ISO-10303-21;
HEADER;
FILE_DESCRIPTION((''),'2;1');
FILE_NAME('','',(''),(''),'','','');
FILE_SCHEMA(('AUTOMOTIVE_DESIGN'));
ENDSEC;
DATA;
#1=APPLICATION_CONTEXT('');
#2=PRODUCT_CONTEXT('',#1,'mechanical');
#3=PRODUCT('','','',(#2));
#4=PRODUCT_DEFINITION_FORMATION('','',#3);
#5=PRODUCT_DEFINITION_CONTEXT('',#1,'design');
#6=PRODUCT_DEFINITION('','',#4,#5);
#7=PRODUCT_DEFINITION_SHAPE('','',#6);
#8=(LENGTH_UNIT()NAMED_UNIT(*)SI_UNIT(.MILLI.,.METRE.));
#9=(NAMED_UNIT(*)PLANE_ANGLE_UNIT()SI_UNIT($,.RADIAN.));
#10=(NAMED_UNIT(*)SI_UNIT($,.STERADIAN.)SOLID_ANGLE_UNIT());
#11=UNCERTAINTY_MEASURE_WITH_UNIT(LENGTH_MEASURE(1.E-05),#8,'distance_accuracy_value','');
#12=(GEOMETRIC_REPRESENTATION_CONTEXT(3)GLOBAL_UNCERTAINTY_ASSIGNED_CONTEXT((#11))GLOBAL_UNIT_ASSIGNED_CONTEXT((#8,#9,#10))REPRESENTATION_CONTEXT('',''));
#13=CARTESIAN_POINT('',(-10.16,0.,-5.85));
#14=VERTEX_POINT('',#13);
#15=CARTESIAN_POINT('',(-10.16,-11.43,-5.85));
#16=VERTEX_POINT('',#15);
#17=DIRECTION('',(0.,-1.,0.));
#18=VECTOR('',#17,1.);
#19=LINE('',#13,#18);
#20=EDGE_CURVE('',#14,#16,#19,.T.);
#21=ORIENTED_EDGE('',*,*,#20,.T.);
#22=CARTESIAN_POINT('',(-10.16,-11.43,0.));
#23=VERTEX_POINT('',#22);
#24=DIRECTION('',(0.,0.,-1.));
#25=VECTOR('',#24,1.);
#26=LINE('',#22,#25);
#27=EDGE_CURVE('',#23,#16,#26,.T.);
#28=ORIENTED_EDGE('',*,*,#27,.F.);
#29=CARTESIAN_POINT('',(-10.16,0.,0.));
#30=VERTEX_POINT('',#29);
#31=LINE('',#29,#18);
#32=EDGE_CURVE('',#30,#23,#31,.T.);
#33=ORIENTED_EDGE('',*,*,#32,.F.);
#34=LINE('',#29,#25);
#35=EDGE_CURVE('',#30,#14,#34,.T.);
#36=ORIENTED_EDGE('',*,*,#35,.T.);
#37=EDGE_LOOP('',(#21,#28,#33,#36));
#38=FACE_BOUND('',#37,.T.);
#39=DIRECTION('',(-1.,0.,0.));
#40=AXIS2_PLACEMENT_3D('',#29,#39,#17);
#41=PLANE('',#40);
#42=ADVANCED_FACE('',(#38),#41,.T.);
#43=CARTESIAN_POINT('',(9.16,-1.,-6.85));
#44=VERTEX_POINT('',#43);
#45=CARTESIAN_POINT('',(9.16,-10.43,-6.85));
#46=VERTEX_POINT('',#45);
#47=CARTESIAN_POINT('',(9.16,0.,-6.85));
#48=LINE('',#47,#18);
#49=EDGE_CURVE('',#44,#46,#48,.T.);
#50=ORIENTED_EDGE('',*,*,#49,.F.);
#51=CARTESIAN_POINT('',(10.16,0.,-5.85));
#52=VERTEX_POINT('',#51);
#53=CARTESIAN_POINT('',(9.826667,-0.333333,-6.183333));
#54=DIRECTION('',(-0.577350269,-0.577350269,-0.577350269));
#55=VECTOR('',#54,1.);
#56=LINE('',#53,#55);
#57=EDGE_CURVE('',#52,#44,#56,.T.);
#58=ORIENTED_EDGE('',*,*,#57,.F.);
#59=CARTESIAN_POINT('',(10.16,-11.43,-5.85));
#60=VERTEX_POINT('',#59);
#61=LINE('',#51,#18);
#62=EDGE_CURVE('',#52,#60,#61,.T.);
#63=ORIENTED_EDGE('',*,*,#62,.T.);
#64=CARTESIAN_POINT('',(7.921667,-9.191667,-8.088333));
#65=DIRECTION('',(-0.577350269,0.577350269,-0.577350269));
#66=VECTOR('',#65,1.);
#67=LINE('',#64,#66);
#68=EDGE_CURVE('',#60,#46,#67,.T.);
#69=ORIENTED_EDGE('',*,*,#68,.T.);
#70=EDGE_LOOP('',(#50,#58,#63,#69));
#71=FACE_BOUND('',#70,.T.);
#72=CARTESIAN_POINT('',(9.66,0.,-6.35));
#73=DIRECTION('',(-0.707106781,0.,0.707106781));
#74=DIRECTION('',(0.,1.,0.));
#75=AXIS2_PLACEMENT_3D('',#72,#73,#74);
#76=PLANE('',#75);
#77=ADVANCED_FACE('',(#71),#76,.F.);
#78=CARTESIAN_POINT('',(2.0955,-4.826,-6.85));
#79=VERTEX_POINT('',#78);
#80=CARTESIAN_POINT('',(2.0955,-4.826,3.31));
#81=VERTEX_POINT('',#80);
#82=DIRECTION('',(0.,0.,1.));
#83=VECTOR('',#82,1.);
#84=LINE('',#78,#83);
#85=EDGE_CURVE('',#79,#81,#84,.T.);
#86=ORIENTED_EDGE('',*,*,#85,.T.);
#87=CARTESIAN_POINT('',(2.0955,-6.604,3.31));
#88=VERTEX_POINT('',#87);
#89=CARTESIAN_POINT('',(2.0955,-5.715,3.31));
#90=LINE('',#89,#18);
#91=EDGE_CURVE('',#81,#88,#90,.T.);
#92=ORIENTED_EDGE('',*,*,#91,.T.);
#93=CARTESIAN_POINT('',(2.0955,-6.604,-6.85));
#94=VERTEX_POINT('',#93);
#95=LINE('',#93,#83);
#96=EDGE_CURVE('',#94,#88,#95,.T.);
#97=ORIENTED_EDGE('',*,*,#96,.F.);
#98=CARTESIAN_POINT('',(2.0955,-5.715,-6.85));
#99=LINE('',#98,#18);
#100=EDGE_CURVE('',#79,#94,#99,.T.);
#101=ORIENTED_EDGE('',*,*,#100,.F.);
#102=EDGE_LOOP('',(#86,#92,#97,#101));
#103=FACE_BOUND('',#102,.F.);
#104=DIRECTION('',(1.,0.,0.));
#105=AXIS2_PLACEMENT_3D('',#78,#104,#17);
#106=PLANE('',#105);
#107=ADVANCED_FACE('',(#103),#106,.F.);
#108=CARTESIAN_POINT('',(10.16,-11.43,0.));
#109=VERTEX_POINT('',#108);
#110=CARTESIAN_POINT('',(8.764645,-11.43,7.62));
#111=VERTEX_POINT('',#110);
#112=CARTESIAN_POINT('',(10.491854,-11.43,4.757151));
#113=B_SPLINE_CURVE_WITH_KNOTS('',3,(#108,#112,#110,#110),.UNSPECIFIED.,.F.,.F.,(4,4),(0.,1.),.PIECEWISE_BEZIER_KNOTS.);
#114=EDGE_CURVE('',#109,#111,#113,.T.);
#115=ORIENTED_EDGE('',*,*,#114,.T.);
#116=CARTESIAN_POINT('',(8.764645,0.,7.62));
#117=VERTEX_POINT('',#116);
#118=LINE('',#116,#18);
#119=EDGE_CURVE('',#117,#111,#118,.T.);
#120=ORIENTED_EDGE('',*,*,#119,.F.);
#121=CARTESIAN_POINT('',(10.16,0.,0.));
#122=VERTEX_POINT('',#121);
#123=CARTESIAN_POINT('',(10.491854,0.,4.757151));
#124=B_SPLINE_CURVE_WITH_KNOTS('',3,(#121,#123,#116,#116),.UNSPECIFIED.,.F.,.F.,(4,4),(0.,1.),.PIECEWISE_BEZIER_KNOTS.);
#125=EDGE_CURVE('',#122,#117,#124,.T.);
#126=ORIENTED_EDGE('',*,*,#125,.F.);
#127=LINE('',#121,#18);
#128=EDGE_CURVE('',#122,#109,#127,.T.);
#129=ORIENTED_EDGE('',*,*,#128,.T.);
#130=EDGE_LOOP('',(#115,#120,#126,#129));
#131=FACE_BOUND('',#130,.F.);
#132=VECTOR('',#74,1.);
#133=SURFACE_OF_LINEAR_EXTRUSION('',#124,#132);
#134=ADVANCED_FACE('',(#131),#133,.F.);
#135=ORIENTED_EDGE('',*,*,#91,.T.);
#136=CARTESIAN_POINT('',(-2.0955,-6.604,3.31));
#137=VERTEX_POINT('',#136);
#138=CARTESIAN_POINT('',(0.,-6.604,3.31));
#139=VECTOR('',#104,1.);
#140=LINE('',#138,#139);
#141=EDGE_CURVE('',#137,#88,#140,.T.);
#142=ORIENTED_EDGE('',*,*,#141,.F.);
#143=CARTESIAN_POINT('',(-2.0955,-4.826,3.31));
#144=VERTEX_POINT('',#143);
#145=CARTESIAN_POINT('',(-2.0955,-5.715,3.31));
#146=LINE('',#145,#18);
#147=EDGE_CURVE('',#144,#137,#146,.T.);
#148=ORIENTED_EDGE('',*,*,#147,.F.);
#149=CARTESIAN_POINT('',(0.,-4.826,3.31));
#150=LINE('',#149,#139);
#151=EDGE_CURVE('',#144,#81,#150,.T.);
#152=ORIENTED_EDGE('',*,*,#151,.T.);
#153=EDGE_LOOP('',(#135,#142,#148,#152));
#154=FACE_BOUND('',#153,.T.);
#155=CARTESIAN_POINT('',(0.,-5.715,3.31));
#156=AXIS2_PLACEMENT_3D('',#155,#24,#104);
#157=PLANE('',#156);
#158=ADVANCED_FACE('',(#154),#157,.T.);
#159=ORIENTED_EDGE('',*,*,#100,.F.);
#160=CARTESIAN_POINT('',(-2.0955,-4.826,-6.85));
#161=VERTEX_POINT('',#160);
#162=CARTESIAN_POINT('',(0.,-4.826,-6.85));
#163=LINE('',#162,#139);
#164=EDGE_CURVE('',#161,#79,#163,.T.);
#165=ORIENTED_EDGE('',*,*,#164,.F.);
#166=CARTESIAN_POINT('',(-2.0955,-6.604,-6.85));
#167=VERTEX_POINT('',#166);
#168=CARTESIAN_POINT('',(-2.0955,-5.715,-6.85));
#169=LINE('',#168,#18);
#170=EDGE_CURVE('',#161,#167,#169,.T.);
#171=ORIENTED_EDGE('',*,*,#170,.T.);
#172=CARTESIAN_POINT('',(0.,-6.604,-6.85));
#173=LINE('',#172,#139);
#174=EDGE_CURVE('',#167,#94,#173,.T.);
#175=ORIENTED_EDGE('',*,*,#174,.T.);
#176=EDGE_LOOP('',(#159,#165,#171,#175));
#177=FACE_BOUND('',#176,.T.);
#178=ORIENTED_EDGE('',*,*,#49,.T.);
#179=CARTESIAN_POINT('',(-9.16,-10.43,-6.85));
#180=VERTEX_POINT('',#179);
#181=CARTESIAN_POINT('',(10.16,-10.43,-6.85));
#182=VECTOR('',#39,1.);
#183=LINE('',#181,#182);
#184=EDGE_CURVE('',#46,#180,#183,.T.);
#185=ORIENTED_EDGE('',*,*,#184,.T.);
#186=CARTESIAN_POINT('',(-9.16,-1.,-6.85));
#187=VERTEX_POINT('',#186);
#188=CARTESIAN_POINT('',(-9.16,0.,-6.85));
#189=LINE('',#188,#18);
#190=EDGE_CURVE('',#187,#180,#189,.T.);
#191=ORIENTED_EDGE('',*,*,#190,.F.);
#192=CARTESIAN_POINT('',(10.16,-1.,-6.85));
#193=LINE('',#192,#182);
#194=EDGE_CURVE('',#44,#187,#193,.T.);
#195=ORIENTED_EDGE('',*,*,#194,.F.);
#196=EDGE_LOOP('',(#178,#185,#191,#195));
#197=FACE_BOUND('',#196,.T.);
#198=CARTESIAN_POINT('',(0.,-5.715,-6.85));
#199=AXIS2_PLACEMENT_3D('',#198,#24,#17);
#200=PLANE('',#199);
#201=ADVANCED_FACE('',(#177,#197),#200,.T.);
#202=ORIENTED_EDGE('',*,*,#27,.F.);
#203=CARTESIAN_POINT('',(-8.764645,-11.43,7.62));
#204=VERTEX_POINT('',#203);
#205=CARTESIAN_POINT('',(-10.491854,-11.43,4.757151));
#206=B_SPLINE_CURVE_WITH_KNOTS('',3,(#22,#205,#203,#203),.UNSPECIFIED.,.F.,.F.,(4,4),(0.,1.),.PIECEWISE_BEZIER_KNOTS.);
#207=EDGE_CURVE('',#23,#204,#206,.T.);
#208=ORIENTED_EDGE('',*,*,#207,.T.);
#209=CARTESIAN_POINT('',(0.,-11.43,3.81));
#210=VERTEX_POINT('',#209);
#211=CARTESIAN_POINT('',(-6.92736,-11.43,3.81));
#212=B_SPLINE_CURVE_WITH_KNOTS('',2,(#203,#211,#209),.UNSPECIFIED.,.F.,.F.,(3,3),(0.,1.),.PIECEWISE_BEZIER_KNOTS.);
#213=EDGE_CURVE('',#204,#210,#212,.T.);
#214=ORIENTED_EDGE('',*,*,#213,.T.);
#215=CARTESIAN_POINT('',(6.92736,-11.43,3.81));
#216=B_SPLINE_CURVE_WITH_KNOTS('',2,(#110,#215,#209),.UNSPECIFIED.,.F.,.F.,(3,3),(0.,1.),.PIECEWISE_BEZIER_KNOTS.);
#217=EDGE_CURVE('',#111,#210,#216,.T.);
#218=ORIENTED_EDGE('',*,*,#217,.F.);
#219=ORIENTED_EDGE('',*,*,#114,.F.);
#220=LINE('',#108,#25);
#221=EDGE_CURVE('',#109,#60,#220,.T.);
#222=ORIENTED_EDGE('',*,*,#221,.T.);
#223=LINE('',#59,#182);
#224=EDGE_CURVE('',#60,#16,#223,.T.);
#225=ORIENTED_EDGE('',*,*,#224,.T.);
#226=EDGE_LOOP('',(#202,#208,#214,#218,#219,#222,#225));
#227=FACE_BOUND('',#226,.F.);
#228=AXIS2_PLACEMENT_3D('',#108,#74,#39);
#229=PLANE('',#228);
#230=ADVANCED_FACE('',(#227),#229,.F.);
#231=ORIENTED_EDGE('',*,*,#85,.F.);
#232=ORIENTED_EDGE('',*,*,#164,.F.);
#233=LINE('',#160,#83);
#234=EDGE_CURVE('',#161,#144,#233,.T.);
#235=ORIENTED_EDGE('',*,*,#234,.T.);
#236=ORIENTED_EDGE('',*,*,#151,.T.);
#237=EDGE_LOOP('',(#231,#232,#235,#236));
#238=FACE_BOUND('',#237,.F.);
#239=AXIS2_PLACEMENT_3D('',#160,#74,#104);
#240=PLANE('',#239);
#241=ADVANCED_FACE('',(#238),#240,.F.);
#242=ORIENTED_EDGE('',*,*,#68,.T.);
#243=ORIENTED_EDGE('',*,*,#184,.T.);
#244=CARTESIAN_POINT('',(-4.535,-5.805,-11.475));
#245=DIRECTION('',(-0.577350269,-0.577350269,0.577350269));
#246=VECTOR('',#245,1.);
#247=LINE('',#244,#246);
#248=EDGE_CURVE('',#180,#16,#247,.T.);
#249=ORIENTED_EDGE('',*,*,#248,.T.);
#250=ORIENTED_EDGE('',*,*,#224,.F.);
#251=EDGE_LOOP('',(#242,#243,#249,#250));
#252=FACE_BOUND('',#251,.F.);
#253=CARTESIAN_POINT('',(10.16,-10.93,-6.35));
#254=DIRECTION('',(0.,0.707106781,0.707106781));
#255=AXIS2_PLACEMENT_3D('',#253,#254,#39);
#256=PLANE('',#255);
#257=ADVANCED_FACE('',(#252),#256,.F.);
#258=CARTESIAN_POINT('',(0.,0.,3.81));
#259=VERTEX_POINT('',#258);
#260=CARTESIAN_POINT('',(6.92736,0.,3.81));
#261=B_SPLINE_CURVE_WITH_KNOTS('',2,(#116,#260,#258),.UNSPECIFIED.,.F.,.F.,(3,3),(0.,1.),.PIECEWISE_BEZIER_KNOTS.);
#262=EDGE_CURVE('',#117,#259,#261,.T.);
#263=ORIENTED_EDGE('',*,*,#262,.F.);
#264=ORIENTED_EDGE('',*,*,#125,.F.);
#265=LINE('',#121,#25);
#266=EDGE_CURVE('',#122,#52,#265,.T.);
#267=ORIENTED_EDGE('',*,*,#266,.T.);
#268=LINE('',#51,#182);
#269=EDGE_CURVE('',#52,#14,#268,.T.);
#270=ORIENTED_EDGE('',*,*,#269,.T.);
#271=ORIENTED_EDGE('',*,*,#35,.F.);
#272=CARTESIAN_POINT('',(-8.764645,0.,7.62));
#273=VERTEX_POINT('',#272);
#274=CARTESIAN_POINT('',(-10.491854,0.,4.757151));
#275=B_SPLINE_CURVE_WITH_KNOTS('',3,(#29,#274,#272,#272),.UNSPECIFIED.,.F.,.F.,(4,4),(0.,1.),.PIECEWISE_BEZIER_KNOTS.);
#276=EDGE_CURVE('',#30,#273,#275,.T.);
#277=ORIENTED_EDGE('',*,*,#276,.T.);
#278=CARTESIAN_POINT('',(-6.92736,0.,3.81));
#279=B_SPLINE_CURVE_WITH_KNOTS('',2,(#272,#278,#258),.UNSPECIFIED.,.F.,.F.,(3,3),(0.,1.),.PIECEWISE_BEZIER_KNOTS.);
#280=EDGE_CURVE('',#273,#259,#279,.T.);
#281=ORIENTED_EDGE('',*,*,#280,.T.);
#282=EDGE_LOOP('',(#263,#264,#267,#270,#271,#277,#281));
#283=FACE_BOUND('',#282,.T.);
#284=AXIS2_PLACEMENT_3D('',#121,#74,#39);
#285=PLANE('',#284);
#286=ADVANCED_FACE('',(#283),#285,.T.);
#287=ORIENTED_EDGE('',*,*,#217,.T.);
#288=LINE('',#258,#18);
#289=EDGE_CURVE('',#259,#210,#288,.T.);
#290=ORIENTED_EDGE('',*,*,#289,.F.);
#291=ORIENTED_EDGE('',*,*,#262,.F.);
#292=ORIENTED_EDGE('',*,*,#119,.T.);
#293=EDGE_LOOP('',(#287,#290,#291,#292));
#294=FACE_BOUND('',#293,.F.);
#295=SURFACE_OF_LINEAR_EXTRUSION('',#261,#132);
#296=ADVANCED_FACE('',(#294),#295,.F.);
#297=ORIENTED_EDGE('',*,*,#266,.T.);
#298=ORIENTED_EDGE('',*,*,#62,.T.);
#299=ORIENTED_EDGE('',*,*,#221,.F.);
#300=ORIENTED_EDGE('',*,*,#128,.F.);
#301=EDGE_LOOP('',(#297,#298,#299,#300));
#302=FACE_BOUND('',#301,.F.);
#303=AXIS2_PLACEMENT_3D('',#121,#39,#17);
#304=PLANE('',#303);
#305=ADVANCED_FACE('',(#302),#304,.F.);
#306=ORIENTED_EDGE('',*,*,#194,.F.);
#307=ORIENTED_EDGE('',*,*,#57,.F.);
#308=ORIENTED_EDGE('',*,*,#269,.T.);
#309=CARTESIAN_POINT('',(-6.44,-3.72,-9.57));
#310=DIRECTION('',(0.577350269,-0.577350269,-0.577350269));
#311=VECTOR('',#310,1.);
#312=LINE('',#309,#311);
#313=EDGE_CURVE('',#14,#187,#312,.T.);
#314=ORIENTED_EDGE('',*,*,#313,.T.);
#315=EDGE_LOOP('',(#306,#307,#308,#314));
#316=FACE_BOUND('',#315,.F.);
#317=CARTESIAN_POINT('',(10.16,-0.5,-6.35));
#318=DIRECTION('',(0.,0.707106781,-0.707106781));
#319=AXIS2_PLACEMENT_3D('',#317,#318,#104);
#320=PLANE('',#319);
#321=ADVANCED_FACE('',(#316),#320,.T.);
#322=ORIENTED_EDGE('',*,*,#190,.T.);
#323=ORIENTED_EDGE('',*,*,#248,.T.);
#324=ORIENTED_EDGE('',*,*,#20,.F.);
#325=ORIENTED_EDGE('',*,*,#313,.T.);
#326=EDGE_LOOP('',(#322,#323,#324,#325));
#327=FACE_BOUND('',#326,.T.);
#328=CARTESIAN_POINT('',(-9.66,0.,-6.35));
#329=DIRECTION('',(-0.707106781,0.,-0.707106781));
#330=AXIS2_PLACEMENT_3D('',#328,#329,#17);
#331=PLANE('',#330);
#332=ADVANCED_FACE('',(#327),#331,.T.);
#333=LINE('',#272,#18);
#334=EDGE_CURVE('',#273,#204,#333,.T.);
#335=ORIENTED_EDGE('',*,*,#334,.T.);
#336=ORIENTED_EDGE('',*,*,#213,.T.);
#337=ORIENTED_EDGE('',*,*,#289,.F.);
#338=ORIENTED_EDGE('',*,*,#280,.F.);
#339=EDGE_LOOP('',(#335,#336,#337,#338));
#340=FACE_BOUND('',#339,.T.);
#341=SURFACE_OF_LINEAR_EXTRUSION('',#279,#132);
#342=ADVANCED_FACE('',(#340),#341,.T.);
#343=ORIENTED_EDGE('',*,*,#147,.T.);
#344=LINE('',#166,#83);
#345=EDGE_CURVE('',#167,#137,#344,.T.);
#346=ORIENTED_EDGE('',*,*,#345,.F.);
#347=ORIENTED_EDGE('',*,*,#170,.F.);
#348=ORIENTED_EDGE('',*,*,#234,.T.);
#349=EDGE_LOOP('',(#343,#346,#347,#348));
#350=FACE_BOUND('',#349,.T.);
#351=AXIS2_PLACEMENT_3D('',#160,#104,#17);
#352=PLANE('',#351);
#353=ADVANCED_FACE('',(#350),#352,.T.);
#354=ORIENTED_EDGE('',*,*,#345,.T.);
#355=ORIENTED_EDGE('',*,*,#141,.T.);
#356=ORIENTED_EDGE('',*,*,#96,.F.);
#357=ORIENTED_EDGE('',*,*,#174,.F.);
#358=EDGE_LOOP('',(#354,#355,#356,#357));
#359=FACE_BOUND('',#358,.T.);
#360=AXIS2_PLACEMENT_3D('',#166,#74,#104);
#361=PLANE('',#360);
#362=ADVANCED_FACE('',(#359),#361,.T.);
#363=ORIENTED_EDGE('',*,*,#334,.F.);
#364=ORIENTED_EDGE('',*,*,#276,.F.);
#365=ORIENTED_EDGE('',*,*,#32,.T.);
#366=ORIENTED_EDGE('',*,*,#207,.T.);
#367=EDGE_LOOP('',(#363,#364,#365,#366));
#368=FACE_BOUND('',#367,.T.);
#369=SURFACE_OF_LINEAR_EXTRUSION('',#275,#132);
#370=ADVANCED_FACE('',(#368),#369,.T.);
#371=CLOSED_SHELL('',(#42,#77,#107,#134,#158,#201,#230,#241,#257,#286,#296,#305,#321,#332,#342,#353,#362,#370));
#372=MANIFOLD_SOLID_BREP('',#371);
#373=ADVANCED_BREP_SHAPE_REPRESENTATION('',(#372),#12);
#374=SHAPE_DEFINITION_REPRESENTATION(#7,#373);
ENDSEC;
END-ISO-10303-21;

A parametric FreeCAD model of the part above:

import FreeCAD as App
import Part
import Sketcher
Q = App.Units.Quantity


def edges_at(feature, points):
    """Names of the edges that pass closest to the given points."""
    edges = feature.Shape.Edges
    near = lambda p: min(range(len(edges)), key=lambda i: edges[i].distToShape(Part.Vertex(*p))[0])
    return sorted({f"Edge{near(p) + 1}" for p in points})

doc = App.newDocument("Part")
params = doc.addObject("Spreadsheet::Sheet", "Params")
for row, (alias, value) in enumerate([
    ("pad1_length", "0.45 in"),
    ("sketch2_width", "0.8 in"),
    ("sketch2_height", "0.45 in"),
    ("pad2_length", "6.85 mm"),
    ("sketch3_height", "0.07 in"),
    ("sketch3_width", "0.165 in"),
    ("pocket1_length", "0.4 in"),
    ("chamfer_size", "1 mm"),
], start=1):
    params.set(f"A{row}", alias)
    params.set(f"B{row}", "=" + value)
    params.setAlias(f"B{row}", alias)

body = doc.addObject("PartDesign::Body", "Body")

# Sketch on XZ plane
sketch1 = body.newObject("Sketcher::SketchObject", "Sketch")
sketch1.AttachmentSupport = (doc.getObject("XZ_Plane"), [""])
sketch1.MapMode = "FlatFace"
sketch1.addGeometry([
    Part.LineSegment(App.Vector(-10.16, 0, 0), App.Vector(0, 0, 0)),
    Part.LineSegment(App.Vector(0, 0, 0), App.Vector(0, 3.81, 0)),
    Part.BSplineCurve([App.Vector(-8.764645, 7.62, 0), App.Vector(-6.92736, 3.81, 0), App.Vector(0, 3.81, 0)], [3, 3], [0, 1], False, 2, [1, 1, 1], False),
    Part.BSplineCurve([App.Vector(-10.16, 0, 0), App.Vector(-10.491854, 4.757151, 0), App.Vector(-8.764645, 7.62, 0), App.Vector(-8.764645, 7.62, 0)], [4, 4], [0, 1], False, 3, [1, 1, 1, 1], False),
], False)
sketch1.addConstraint([
    Sketcher.Constraint("Block", 2),
    Sketcher.Constraint("Block", 3),
    Sketcher.Constraint("Coincident", 0, 2, 1, 1),
    Sketcher.Constraint("Coincident", 1, 2, 2, 2),
    Sketcher.Constraint("Coincident", 3, 1, 0, 1),
    Sketcher.Constraint("Horizontal", 0),
    Sketcher.Constraint("Vertical", 1),
])
pad1 = body.newObject("PartDesign::Pad", "Pad")
pad1.Profile = sketch1
pad1.setExpression("Length", "Params.pad1_length")
body2 = doc.addObject("PartDesign::Body", "Body001")
doc.recompute()

body2.BaseFeature = body
doc.recompute()

mirroring = doc.addObject("Part::Mirroring", "Mirroring")
mirroring.Source = body
mirroring.Base = App.Vector(0, 0, 0)
mirroring.Normal = App.Vector(1, 0, 0)
body3 = doc.addObject("PartDesign::Body", "Body002")
body3.BaseFeature = mirroring
boolean = body2.newObject("PartDesign::Boolean", "Boolean")
boolean.Type = "Fuse"
boolean.addObjects([body3])
doc.recompute()

# Sketch on XY plane
sketch2 = body2.newObject("Sketcher::SketchObject", "Sketch001")
sketch2.AttachmentSupport = (doc.getObject("XY_Plane001"), [""])
sketch2.MapMode = "FlatFace"
sketch2.addGeometry([
    Part.LineSegment(App.Vector(-10.16, 0, 0), App.Vector(10.16, 0, 0)),
    Part.LineSegment(App.Vector(10.16, 0, 0), App.Vector(10.16, -11.43, 0)),
    Part.LineSegment(App.Vector(10.16, -11.43, 0), App.Vector(-10.16, -11.43, 0)),
    Part.LineSegment(App.Vector(-10.16, -11.43, 0), App.Vector(-10.16, 0, 0)),
], False)
sketch2.addConstraint([
    Sketcher.Constraint("Coincident", 0, 2, 1, 1),
    Sketcher.Constraint("Coincident", 1, 2, 2, 1),
    Sketcher.Constraint("Coincident", 2, 2, 3, 1),
    Sketcher.Constraint("Coincident", 3, 2, 0, 1),
    Sketcher.Constraint("Horizontal", 0),
    Sketcher.Constraint("Vertical", 1),
    Sketcher.Constraint("Horizontal", 2),
    Sketcher.Constraint("Vertical", 3),
    Sketcher.Constraint("Symmetric", 0, 2, 3, 2, -1, 1),
    Sketcher.Constraint("DistanceX", 0, 1, 0, 2, Q("0.8 in")),
    Sketcher.Constraint("DistanceY", 1, 2, 1, 1, Q("0.45 in")),
])
sketch2.setExpression("Constraints[9]", "Params.sketch2_width")
sketch2.setExpression("Constraints[10]", "Params.sketch2_height")
pad2 = body2.newObject("PartDesign::Pad", "Pad001")
pad2.Profile = sketch2
pad2.setExpression("Length", "Params.pad2_length")
pad2.Reversed = True

# Sketch on XY plane
sketch3 = body2.newObject("Sketcher::SketchObject", "Sketch002")
sketch3.AttachmentSupport = (doc.getObject("XY_Plane001"), [""])
sketch3.MapMode = "FlatFace"
sketch3.AttachmentOffset = App.Placement(App.Vector(0, 0, -6.85), App.Rotation())
sketch3.addGeometry([
    Part.LineSegment(App.Vector(-2.0955, -6.604, 0), App.Vector(-2.0955, -4.826, 0)),
    Part.LineSegment(App.Vector(-2.0955, -4.826, 0), App.Vector(2.0955, -4.826, 0)),
    Part.LineSegment(App.Vector(2.0955, -4.826, 0), App.Vector(2.0955, -6.604, 0)),
    Part.LineSegment(App.Vector(2.0955, -6.604, 0), App.Vector(-2.0955, -6.604, 0)),
], False)
sketch3.addConstraint([
    Sketcher.Constraint("Coincident", 0, 2, 1, 1),
    Sketcher.Constraint("Coincident", 1, 2, 2, 1),
    Sketcher.Constraint("Coincident", 2, 2, 3, 1),
    Sketcher.Constraint("Coincident", 3, 2, 0, 1),
    Sketcher.Constraint("Vertical", 0),
    Sketcher.Constraint("Horizontal", 1),
    Sketcher.Constraint("Vertical", 2),
    Sketcher.Constraint("Horizontal", 3),
    Sketcher.Constraint("DistanceY", 0, 1, 0, 2, Q("0.07 in")),
    Sketcher.Constraint("DistanceX", 1, 1, 1, 2, Q("0.165 in")),
    Sketcher.Constraint("DistanceY", 0, 2, -1, 1, Q("0.19 in")),
    Sketcher.Constraint("DistanceX", 0, 2, -1, 1, Q("0.0825 in")),
])
sketch3.setExpression("Constraints[8]", "Params.sketch3_height")
sketch3.setExpression("Constraints[9]", "Params.sketch3_width")
pocket1 = body2.newObject("PartDesign::Pocket", "Pocket")
pocket1.Profile = sketch3
pocket1.setExpression("Length", "Params.pocket1_length")
pocket1.Reversed = True
doc.recompute()

chamfer = body2.newObject("PartDesign::Chamfer", "Chamfer")
chamfer.Base = (pocket1, edges_at(pocket1, [
    (0, 0, -6.85),
    (10.16, -5.715, -6.85),
    (0, -11.43, -6.85),
    (-10.16, -5.715, -6.85),
]))
chamfer.setExpression("Size", "Params.chamfer_size")
mirroring.Visibility = False

doc.recompute()
